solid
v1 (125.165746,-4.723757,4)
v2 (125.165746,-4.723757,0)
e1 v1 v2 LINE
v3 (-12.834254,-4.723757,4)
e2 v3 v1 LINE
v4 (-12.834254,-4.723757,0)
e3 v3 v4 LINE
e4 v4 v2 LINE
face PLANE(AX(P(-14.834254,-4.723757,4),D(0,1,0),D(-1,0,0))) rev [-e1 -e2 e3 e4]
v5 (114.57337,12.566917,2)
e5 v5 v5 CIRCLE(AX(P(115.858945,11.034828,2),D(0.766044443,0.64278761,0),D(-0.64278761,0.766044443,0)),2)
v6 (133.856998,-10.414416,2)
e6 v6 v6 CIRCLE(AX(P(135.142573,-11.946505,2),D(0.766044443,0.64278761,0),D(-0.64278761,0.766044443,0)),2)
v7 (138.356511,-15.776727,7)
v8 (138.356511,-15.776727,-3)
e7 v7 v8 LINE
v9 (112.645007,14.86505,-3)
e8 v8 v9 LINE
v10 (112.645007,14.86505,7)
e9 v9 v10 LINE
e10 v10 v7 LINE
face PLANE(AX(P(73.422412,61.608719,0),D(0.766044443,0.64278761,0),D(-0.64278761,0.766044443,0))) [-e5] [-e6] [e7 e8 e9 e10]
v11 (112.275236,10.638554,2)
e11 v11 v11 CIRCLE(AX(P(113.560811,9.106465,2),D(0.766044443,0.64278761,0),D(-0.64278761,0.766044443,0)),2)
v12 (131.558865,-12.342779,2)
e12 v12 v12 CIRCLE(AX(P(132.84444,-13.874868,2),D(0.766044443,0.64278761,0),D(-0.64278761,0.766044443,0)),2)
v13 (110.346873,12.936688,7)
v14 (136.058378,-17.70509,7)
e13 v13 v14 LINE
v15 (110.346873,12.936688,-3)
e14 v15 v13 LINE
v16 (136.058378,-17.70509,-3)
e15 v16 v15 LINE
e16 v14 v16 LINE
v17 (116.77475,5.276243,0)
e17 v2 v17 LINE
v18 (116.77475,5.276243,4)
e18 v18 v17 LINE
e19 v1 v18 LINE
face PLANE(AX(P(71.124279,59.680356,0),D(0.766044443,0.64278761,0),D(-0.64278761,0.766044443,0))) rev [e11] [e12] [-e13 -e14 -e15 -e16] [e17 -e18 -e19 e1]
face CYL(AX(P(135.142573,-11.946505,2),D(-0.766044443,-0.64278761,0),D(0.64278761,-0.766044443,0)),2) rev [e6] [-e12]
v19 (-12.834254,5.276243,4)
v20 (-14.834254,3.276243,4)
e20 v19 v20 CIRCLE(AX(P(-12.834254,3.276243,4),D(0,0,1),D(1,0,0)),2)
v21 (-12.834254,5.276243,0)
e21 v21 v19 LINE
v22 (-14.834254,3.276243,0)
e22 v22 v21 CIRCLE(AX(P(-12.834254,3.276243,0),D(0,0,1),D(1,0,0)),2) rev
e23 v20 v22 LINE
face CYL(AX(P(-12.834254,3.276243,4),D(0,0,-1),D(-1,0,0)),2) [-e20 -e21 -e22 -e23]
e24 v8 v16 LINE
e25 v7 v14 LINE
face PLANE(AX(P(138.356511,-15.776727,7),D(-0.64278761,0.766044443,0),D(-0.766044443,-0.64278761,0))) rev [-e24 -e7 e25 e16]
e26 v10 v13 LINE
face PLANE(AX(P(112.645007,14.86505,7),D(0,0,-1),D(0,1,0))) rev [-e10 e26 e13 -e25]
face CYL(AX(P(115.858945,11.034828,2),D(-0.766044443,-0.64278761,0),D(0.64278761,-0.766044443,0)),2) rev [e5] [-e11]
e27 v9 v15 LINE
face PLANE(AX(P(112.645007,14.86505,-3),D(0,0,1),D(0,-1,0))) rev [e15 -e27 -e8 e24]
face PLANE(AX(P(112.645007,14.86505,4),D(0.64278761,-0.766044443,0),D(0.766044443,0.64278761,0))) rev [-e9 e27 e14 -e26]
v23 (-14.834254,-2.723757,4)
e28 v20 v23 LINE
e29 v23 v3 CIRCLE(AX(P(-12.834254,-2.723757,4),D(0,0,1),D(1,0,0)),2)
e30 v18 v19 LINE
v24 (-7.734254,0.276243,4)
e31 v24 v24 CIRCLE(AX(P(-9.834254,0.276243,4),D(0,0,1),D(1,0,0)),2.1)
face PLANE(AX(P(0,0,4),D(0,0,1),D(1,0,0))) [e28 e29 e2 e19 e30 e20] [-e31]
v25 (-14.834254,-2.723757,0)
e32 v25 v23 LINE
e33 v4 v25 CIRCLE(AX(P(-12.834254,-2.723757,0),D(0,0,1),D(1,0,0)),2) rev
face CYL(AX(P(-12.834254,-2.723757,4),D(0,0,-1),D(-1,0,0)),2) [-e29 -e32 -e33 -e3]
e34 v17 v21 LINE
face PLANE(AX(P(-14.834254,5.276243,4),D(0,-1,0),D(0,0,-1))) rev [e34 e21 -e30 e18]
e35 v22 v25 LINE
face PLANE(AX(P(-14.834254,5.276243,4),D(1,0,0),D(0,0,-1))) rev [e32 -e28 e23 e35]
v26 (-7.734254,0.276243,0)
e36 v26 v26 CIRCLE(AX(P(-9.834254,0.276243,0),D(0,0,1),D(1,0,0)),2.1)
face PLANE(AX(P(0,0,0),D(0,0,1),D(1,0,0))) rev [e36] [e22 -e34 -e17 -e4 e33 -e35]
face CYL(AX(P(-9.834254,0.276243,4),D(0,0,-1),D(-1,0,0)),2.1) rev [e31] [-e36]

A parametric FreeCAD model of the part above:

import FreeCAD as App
import Part
import Sketcher
Q = App.Units.Quantity


def edges_at(feature, points):
    """Names of the edges that pass closest to the given points."""
    edges = feature.Shape.Edges
    near = lambda p: min(range(len(edges)), key=lambda i: edges[i].distToShape(Part.Vertex(*p))[0])
    return sorted({f"Edge{near(p) + 1}" for p in points})

doc = App.newDocument("Part")
body = doc.addObject("PartDesign::Body", "Body")

sketch1 = body.newObject("Sketcher::SketchObject", "Sketch")
sketch1.AttachmentSupport = (doc.getObject("XY_Plane"), [""])
sketch1.MapMode = "FlatFace"
sketch1.addGeometry([
    Part.LineSegment(App.Vector(125.2, -4.7, 0), App.Vector(116.8, 5.3, 0)),
    Part.LineSegment(App.Vector(116.8, 5.3, 0), App.Vector(-14.8, 5.3, 0)),
    Part.LineSegment(App.Vector(-14.8, 5.3, 0), App.Vector(-14.8, -4.7, 0)),
    Part.LineSegment(App.Vector(-14.8, -4.7, 0), App.Vector(125.2, -4.7, 0)),
    Part.Circle(App.Vector(-9.8, 0.3, 0), App.Vector(0, 0, 1), 2.1),
], False)
sketch1.addConstraint([
    Sketcher.Constraint("Coincident", 0, 2, 1, 1),
    Sketcher.Constraint("Coincident", 1, 2, 2, 1),
    Sketcher.Constraint("Coincident", 2, 2, 3, 1),
    Sketcher.Constraint("Coincident", 3, 2, 0, 1),
    Sketcher.Constraint("Horizontal", 1),
    Sketcher.Constraint("Vertical", 2),
    Sketcher.Constraint("Horizontal", 3),
    Sketcher.Constraint("Diameter", 4, 4.2),
    Sketcher.Constraint("DistanceX", 3, 1, 3, 2, 140.0),
    Sketcher.Constraint("DistanceY", 2, 2, 2, 1, 10.0),
    Sketcher.Constraint("Angle", 0, Q("130 deg")),
    Sketcher.Constraint("DistanceY", 4, 3, 0, 2, 5.0),
    Sketcher.Constraint("DistanceX", 1, 2, 4, 3, 5.0),
    Sketcher.Constraint("DistanceX", -1, 1, 0, 2, 116.77475),
    Sketcher.Constraint("DistanceY", -1, 1, 4, 3, 0.276243),
])
pad1 = body.newObject("PartDesign::Pad", "Pad")
pad1.Profile = sketch1
pad1.Length = 4
doc.recompute()

fillet = body.newObject("PartDesign::Fillet", "Fillet")
fillet.Base = (pad1, edges_at(pad1, [(-14.834, 5.276, 2), (-14.834, -4.724, 2)]))
fillet.Radius = 2

sketch2 = body.newObject("Sketcher::SketchObject", "Sketch001")
sketch2.Placement = App.Placement(App.Vector(71.124279, 59.680356, 0), App.Rotation(App.Vector(0, 0, -1), App.Vector(-0.64278761, 0.766044443, 0), App.Vector(0.766044443, 0.64278761, 0), "ZXY"))
sketch2.addGeometry([
    Part.LineSegment(App.Vector(3, -61, 0), App.Vector(-7, -61, 0)),
    Part.LineSegment(App.Vector(-7, -61, 0), App.Vector(-7, -101, 0)),
    Part.LineSegment(App.Vector(-7, -101, 0), App.Vector(3, -101, 0)),
    Part.LineSegment(App.Vector(3, -101, 0), App.Vector(3, -61, 0)),
    Part.Circle(App.Vector(-2, -96, 0), App.Vector(0, 0, 1), 2),
    Part.Circle(App.Vector(-2, -66, 0), App.Vector(0, 0, 1), 2),
], False)
sketch2.addConstraint([
    Sketcher.Constraint("Coincident", 0, 2, 1, 1),
    Sketcher.Constraint("Coincident", 1, 2, 2, 1),
    Sketcher.Constraint("Coincident", 2, 2, 3, 1),
    Sketcher.Constraint("Coincident", 3, 2, 0, 1),
    Sketcher.Constraint("Horizontal", 0),
    Sketcher.Constraint("Vertical", 1),
    Sketcher.Constraint("Horizontal", 2),
    Sketcher.Constraint("Vertical", 3),
    Sketcher.Constraint("Equal", 4, 5),
    Sketcher.Constraint("Vertical", 4, 3, 5, 3),
    Sketcher.Constraint("Diameter", 4, 4.0),
    Sketcher.Constraint("DistanceX", 0, 2, 0, 1, 10.0),
    Sketcher.Constraint("DistanceY", 1, 2, 1, 1, 40.0),
    Sketcher.Constraint("DistanceX", 4, 3, -1, 1, 2.0),
    Sketcher.Constraint("DistanceX", 0, 2, -1, 1, 7.0),
    Sketcher.Constraint("DistanceY", 4, 3, 5, 3, 30.0),
    Sketcher.Constraint("DistanceY", 5, 3, 0, 2, 5.0),
    Sketcher.Constraint("DistanceY", 4, 3, -1, 1, 96.019525),
])
pad2 = body.newObject("PartDesign::Pad", "Pad001")
pad2.Profile = sketch2
pad2.Length = 3

doc.recompute()
